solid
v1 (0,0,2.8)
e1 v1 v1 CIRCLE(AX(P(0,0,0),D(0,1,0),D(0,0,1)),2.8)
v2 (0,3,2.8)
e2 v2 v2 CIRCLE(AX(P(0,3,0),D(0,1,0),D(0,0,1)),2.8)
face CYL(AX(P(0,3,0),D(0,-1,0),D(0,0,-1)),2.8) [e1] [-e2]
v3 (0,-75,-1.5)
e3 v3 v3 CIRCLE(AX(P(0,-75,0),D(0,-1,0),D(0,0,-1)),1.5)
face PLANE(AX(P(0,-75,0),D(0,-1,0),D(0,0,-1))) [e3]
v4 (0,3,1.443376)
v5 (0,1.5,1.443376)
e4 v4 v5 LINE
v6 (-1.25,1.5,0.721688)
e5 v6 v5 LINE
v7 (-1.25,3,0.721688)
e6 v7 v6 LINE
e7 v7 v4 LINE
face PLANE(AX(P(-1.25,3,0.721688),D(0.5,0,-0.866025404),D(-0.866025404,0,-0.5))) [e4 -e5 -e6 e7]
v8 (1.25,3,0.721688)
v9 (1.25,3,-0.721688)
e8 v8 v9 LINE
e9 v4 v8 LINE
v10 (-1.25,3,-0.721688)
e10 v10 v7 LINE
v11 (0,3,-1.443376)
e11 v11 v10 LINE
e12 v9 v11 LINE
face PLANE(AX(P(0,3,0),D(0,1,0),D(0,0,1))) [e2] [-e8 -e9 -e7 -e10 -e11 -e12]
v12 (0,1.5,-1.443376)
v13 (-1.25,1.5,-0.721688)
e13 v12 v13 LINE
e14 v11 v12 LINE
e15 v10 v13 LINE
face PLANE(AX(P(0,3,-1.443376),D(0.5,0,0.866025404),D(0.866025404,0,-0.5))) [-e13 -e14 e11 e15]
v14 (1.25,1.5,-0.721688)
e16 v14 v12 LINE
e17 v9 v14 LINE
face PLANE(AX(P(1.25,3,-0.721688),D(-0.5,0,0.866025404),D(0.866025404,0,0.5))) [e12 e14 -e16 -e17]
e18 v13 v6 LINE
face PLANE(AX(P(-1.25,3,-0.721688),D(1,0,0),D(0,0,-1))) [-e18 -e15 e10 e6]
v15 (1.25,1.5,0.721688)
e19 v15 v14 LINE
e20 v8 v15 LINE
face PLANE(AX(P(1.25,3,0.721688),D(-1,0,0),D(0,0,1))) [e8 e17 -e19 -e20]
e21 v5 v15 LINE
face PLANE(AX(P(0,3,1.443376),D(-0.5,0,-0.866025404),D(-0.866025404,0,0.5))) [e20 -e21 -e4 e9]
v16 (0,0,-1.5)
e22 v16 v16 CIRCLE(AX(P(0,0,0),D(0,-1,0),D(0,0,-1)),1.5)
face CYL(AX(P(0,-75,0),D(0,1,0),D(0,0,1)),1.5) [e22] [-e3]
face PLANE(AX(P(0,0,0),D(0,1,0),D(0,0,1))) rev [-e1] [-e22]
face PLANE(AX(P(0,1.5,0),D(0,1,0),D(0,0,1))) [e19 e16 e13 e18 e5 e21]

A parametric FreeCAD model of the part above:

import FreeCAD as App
import Part
import Sketcher

V = App.Vector
Q = App.Units.Quantity

doc = App.newDocument("Part")
body = doc.addObject("PartDesign::Body", "Body")

# Sketch on XZ plane
sketch1 = body.newObject("Sketcher::SketchObject", "Sketch")
sketch1.AttachmentSupport = (doc.getObject("XZ_Plane"), [""])
sketch1.MapMode = "FlatFace"
sketch1.addGeometry([
    Part.Circle(V(0, 0, 0), V(0, 0, 1), 2.8),  # 0
    Part.LineSegment(V(1.2, -0.7, 0), V(1.2, 0.7, 0)),  # 1
    Part.LineSegment(V(1.2, 0.7, 0), V(0, 1.4, 0)),  # 2
    Part.LineSegment(V(0, 1.4, 0), V(-1.2, 0.7, 0)),  # 3
    Part.LineSegment(V(-1.2, 0.7, 0), V(-1.2, -0.7, 0)),  # 4
    Part.LineSegment(V(-1.2, -0.7, 0), V(0, -1.4, 0)),  # 5
    Part.LineSegment(V(0, -1.4, 0), V(1.2, -0.7, 0)),  # 6
], False)
sketch1.addConstraint([
    Sketcher.Constraint("Coincident", 1, 2, 2, 1),
    Sketcher.Constraint("Coincident", 2, 2, 3, 1),
    Sketcher.Constraint("Coincident", 3, 2, 4, 1),
    Sketcher.Constraint("Coincident", 4, 2, 5, 1),
    Sketcher.Constraint("Coincident", 5, 2, 6, 1),
    Sketcher.Constraint("Coincident", 6, 2, 1, 1),
    Sketcher.Constraint("Vertical", 1),
    Sketcher.Constraint("Vertical", 4),
    Sketcher.Constraint("Coincident", 0, 3, -1, 1),
    Sketcher.Constraint("Symmetric", 1, 2, 4, 2, -1, 1),
    Sketcher.Constraint("Symmetric", 2, 2, 5, 2, -1, 1),
    Sketcher.Constraint("PointOnObject", 2, 2, -2),
    Sketcher.Constraint("Parallel", 3, 6),
    Sketcher.Constraint("Horizontal", 1, 2, 3, 2),
    Sketcher.Constraint("Diameter", 0, 5.6),
    Sketcher.Constraint("Angle", 2, Q("150 deg")),
    Sketcher.Constraint("DistanceX", 3, 2, 1, 2, 2.5),
    Sketcher.Constraint("DistanceY", 1, 1, 1, 2, 1.443376),
])
pad1 = body.newObject("PartDesign::Pad", "Pad")
pad1.Profile = sketch1
pad1.Length = 3
pad1.Reversed = True

# Sketch on XZ plane
sketch2 = body.newObject("Sketcher::SketchObject", "Sketch001")
sketch2.AttachmentSupport = (doc.getObject("XZ_Plane"), [""])
sketch2.MapMode = "FlatFace"
sketch2.addGeometry([
    Part.LineSegment(V(-1.2, 0.7, 0), V(0, 1.4, 0)),  # 0
    Part.LineSegment(V(0, 1.4, 0), V(1.2, 0.7, 0)),  # 1
    Part.LineSegment(V(1.2, 0.7, 0), V(1.2, -0.7, 0)),  # 2
    Part.LineSegment(V(1.2, -0.7, 0), V(0, -1.4, 0)),  # 3
    Part.LineSegment(V(0, -1.4, 0), V(-1.2, -0.7, 0)),  # 4
    Part.LineSegment(V(-1.2, -0.7, 0), V(-1.2, 0.7, 0)),  # 5
], False)
sketch2.addConstraint([
    Sketcher.Constraint("Coincident", 0, 2, 1, 1),
    Sketcher.Constraint("Coincident", 1, 2, 2, 1),
    Sketcher.Constraint("Coincident", 2, 2, 3, 1),
    Sketcher.Constraint("Coincident", 3, 2, 4, 1),
    Sketcher.Constraint("Coincident", 4, 2, 5, 1),
    Sketcher.Constraint("Coincident", 5, 2, 0, 1),
    Sketcher.Constraint("Vertical", 2),
    Sketcher.Constraint("Vertical", 5),
    Sketcher.Constraint("Symmetric", 0, 2, 3, 2, -1, 1),
    Sketcher.Constraint("Symmetric", 1, 2, 4, 2, -1, 1),
    Sketcher.Constraint("PointOnObject", 0, 2, -2),
    Sketcher.Constraint("Parallel", 0, 3),
    Sketcher.Constraint("Horizontal", 2, 2, 4, 2),
    Sketcher.Constraint("Angle", 0, Q("30 deg")),
    Sketcher.Constraint("DistanceX", 4, 2, 2, 2, 2.5),
    Sketcher.Constraint("DistanceY", 2, 2, 2, 1, 1.443376),
])
pad2 = body.newObject("PartDesign::Pad", "Pad001")
pad2.Profile = sketch2
pad2.Length = 1.5
pad2.Reversed = True

# Sketch on XZ plane
sketch3 = body.newObject("Sketcher::SketchObject", "Sketch002")
sketch3.AttachmentSupport = (doc.getObject("XZ_Plane"), [""])
sketch3.MapMode = "FlatFace"
sketch3.addGeometry(Part.Circle(V(0, 0, 0), V(0, 0, 1), 1.5), False)
sketch3.addConstraint([
    Sketcher.Constraint("Coincident", 0, 3, -1, 1),
    Sketcher.Constraint("Diameter", 0, 3.0),
])
pad3 = body.newObject("PartDesign::Pad", "Pad002")
pad3.Profile = sketch3
pad3.Length = 75

doc.recompute()
